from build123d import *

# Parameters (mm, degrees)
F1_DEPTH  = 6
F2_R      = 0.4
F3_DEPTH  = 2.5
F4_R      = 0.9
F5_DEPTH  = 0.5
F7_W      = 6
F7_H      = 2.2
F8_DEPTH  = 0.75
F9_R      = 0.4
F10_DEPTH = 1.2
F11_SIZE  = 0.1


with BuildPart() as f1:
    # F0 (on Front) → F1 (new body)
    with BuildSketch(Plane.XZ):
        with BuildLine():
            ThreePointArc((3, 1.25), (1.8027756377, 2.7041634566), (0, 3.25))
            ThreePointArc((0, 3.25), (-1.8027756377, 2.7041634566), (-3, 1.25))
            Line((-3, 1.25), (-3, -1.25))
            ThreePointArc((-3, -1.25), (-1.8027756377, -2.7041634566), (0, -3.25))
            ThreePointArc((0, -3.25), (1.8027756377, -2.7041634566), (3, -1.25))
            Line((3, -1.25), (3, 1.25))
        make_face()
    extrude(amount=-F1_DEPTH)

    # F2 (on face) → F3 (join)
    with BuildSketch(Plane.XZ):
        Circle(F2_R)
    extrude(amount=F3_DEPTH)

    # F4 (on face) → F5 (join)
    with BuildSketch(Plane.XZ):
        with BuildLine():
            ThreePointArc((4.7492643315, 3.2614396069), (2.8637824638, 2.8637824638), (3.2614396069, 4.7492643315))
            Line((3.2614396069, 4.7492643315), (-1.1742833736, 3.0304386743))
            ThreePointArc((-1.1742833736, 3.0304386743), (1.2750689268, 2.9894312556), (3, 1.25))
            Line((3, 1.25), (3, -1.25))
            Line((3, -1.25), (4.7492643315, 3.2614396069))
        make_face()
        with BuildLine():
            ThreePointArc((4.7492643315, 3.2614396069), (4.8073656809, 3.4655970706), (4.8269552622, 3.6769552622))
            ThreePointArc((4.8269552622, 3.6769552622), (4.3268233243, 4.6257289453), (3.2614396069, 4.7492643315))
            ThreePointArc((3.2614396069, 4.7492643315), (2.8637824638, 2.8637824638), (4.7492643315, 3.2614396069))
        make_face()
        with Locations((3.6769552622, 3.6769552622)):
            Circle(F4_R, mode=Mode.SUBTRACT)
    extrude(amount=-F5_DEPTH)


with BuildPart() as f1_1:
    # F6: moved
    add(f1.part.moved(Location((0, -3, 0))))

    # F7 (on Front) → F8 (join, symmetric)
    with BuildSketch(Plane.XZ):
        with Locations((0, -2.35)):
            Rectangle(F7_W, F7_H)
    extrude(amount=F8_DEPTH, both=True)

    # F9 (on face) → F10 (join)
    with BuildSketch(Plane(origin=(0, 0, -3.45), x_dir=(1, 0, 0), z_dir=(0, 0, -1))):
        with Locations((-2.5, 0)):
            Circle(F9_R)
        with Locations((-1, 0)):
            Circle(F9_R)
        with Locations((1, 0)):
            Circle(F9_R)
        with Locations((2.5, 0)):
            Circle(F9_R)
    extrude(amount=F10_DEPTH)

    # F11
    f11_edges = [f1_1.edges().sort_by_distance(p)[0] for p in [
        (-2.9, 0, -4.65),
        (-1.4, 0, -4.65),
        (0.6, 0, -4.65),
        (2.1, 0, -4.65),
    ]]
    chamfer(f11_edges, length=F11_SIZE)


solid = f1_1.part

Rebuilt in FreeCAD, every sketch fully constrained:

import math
import FreeCAD as App
import Part
import Sketcher
from FreeCAD import Vector
Q = App.Units.Quantity


def edges_at(feature, points):
    """Names of the edges that pass closest to the given points."""
    edges = feature.Shape.Edges
    near = lambda p: min(range(len(edges)), key=lambda i: edges[i].distToShape(Part.Vertex(*p))[0])
    return sorted({f"Edge{near(p) + 1}" for p in points})

doc = App.newDocument("Part")
body = doc.addObject("PartDesign::Body", "Body")

sketch1 = body.newObject("Sketcher::SketchObject", "Sketch")
sketch1.AttachmentSupport = (doc.getObject("XZ_Plane"), [""])
sketch1.MapMode = "FlatFace"
sketch1.addGeometry(Part.ArcOfCircle(Part.Circle(Vector(0, 0, 0), Vector(0, 0, 1), 3.2), math.radians(23), math.radians(90)), False)
sketch1.addGeometry(Part.ArcOfCircle(Part.Circle(Vector(0, 0, 0), Vector(0, 0, 1), 3.2), math.radians(90), math.radians(157)), False)
sketch1.addGeometry(Part.LineSegment(Vector(-3, 1.2, 0), Vector(-3, -1.2, 0)), False)
sketch1.addGeometry(Part.ArcOfCircle(Part.Circle(Vector(0, 0, 0), Vector(0, 0, 1), 3.2), math.radians(-157), math.radians(-90)), False)
sketch1.addGeometry(Part.ArcOfCircle(Part.Circle(Vector(0, 0, 0), Vector(0, 0, 1), 3.2), math.radians(-90), math.radians(-23)), False)
sketch1.addGeometry(Part.LineSegment(Vector(3, -1.2, 0), Vector(3, 1.2, 0)), False)
sketch1.addConstraint(Sketcher.Constraint("Tangent", 0, 2, 1, 1))
sketch1.addConstraint(Sketcher.Constraint("Coincident", 1, 2, 2, 1))
sketch1.addConstraint(Sketcher.Constraint("Coincident", 2, 2, 3, 1))
sketch1.addConstraint(Sketcher.Constraint("Tangent", 3, 2, 4, 1))
sketch1.addConstraint(Sketcher.Constraint("Coincident", 4, 2, 5, 1))
sketch1.addConstraint(Sketcher.Constraint("Coincident", 5, 2, 0, 1))
sketch1.addConstraint(Sketcher.Constraint("Vertical", 2))
sketch1.addConstraint(Sketcher.Constraint("Vertical", 5))
sketch1.addConstraint(Sketcher.Constraint("Coincident", 0, 3, -1, 1))
sketch1.addConstraint(Sketcher.Constraint("Coincident", 3, 3, -1, 1))
sketch1.addConstraint(Sketcher.Constraint("Equal", 0, 1))
sketch1.addConstraint(Sketcher.Constraint("Equal", 1, 3))
sketch1.addConstraint(Sketcher.Constraint("Equal", 3, 4))
sketch1.addConstraint(Sketcher.Constraint("PointOnObject", 0, 2, -2))
sketch1.addConstraint(Sketcher.Constraint("PointOnObject", 3, 2, -2))
sketch1.addConstraint(Sketcher.Constraint("Horizontal", 2, 2, 4, 2))
sketch1.addConstraint(Sketcher.Constraint("Radius", 0, Q("3.25 mm")))
sketch1.addConstraint(Sketcher.Constraint("DistanceY", 2, 2, 2, 1, Q("2.5 mm")))
pad1 = body.newObject("PartDesign::Pad", "Pad")
pad1.Profile = sketch1
pad1.Length = 6
pad1.Reversed = True

sketch2 = body.newObject("Sketcher::SketchObject", "Sketch001")
sketch2.AttachmentSupport = (doc.getObject("XZ_Plane"), [""])
sketch2.MapMode = "FlatFace"
sketch2.addGeometry(Part.Circle(Vector(0, 0, 0), Vector(0, 0, 1), 0.4), False)
sketch2.addConstraint(Sketcher.Constraint("Coincident", 0, 3, -1, 1))
sketch2.addConstraint(Sketcher.Constraint("Diameter", 0, Q("0.8 mm")))
pad2 = body.newObject("PartDesign::Pad", "Pad001")
pad2.Profile = sketch2
pad2.Length = 2.5

sketch3 = body.newObject("Sketcher::SketchObject", "Sketch002")
sketch3.AttachmentSupport = (doc.getObject("XZ_Plane"), [""])
sketch3.MapMode = "FlatFace"
sketch3.addGeometry(Part.LineSegment(Vector(3.26, 4.75, 0), Vector(-1.17, 3.03, 0)), False)
sketch3.addGeometry(Part.ArcOfCircle(Part.Circle(Vector(0, 0, 0), Vector(0, 0, 1), 3.25), math.radians(23), math.radians(111)), False)
sketch3.addGeometry(Part.LineSegment(Vector(3, 1.25, 0), Vector(3, -1.25, 0)), False)
sketch3.addGeometry(Part.LineSegment(Vector(3, -1.25, 0), Vector(4.75, 3.26, 0)), False)
sketch3.addGeometry(Part.ArcOfCircle(Part.Circle(Vector(3.68, 3.68, 0), Vector(0, 0, 1), 1.15), math.radians(-21), math.radians(0)), False)
sketch3.addGeometry(Part.ArcOfCircle(Part.Circle(Vector(3.68, 3.68, 0), Vector(0, 0, 1), 1.15), math.radians(0), math.radians(111)), False)
sketch3.addGeometry(Part.Circle(Vector(3.68, 3.68, 0), Vector(0, 0, 1), 0.9), False)
sketch3.addConstraint(Sketcher.Constraint("Tangent", 0, 2, 1, 2))
sketch3.addConstraint(Sketcher.Constraint("Coincident", 1, 1, 2, 1))
sketch3.addConstraint(Sketcher.Constraint("Coincident", 2, 2, 3, 1))
sketch3.addConstraint(Sketcher.Constraint("Coincident", 3, 2, 4, 1))
sketch3.addConstraint(Sketcher.Constraint("Tangent", 4, 2, 5, 1))
sketch3.addConstraint(Sketcher.Constraint("Tangent", 5, 2, 0, 1))
sketch3.addConstraint(Sketcher.Constraint("Vertical", 2))
sketch3.addConstraint(Sketcher.Constraint("Coincident", 1, 3, -1, 1))
sketch3.addConstraint(Sketcher.Constraint("Coincident", 6, 3, 4, 3))
sketch3.addConstraint(Sketcher.Constraint("Equal", 4, 5))
sketch3.addConstraint(Sketcher.Constraint("Horizontal", 6, 3, 4, 2))
sketch3.addConstraint(Sketcher.Constraint("Diameter", 6, Q("1.8 mm")))
sketch3.addConstraint(Sketcher.Constraint("Radius", 1, Q("3.25 mm")))
sketch3.addConstraint(Sketcher.Constraint("Radius", 4, Q("1.15 mm")))
sketch3.addConstraint(Sketcher.Constraint("DistanceY", 2, 2, 2, 1, Q("2.5 mm")))
sketch3.addConstraint(Sketcher.Constraint("DistanceX", -1, 1, 1, 1, Q("3 mm")))
sketch3.addConstraint(Sketcher.Constraint("Distance", 0, Q("4.7571 mm")))
sketch3.addConstraint(Sketcher.Constraint("Distance", 3, Q("4.8387 mm")))
sketch3.addConstraint(Sketcher.Constraint("DistanceY", -1, 1, 0, 2, Q("3.030439 mm")))
pad3 = body.newObject("PartDesign::Pad", "Pad002")
pad3.Profile = sketch3
pad3.Length = 0.5
pad3.Reversed = True
body2 = doc.addObject("PartDesign::Body", "Body001")
doc.recompute()

body.Placement = App.Placement(Vector(0, -3, 0), App.Rotation(Vector(0, 0, 1), 0))
boolean = body2.newObject("PartDesign::Boolean", "Boolean")
boolean.Type = "Fuse"
boolean.addObjects([body])

sketch4 = body2.newObject("Sketcher::SketchObject", "Sketch003")
sketch4.AttachmentSupport = (doc.getObject("XZ_Plane001"), [""])
sketch4.MapMode = "FlatFace"
sketch4.addGeometry(Part.LineSegment(Vector(-3, -1.2, 0), Vector(-3, -3.5, 0)), False)
sketch4.addGeometry(Part.LineSegment(Vector(-3, -3.5, 0), Vector(3, -3.5, 0)), False)
sketch4.addGeometry(Part.LineSegment(Vector(3, -3.5, 0), Vector(3, -1.2, 0)), False)
sketch4.addGeometry(Part.LineSegment(Vector(3, -1.2, 0), Vector(-3, -1.2, 0)), False)
sketch4.addConstraint(Sketcher.Constraint("Coincident", 0, 2, 1, 1))
sketch4.addConstraint(Sketcher.Constraint("Coincident", 1, 2, 2, 1))
sketch4.addConstraint(Sketcher.Constraint("Coincident", 2, 2, 3, 1))
sketch4.addConstraint(Sketcher.Constraint("Coincident", 3, 2, 0, 1))
sketch4.addConstraint(Sketcher.Constraint("Vertical", 0))
sketch4.addConstraint(Sketcher.Constraint("Horizontal", 1))
sketch4.addConstraint(Sketcher.Constraint("Vertical", 2))
sketch4.addConstraint(Sketcher.Constraint("Horizontal", 3))
sketch4.addConstraint(Sketcher.Constraint("DistanceX", 1, 1, 1, 2, Q("6 mm")))
sketch4.addConstraint(Sketcher.Constraint("DistanceY", 0, 2, 0, 1, Q("2.2 mm")))
sketch4.addConstraint(Sketcher.Constraint("DistanceX", 0, 2, -1, 1, Q("3 mm")))
sketch4.addConstraint(Sketcher.Constraint("DistanceY", 0, 2, -1, 1, Q("3.45 mm")))
pad4 = body2.newObject("PartDesign::Pad", "Pad003")
pad4.Profile = sketch4
pad4.Length = 1.5
pad4.Midplane = True

sketch5 = body2.newObject("Sketcher::SketchObject", "Sketch004")
sketch5.AttachmentSupport = (doc.getObject("XY_Plane001"), [""])
sketch5.MapMode = "FlatFace"
sketch5.AttachmentOffset = App.Placement(Vector(0, 0, -3.45), App.Rotation())
sketch5.addGeometry(Part.Circle(Vector(-2.5, 0, 0), Vector(0, 0, 1), 0.4), False)
sketch5.addGeometry(Part.Circle(Vector(-1, 0, 0), Vector(0, 0, 1), 0.4), False)
sketch5.addGeometry(Part.Circle(Vector(1, 0, 0), Vector(0, 0, 1), 0.4), False)
sketch5.addGeometry(Part.Circle(Vector(2.5, 0, 0), Vector(0, 0, 1), 0.4), False)
sketch5.addConstraint(Sketcher.Constraint("Equal", 0, 1))
sketch5.addConstraint(Sketcher.Constraint("Equal", 1, 2))
sketch5.addConstraint(Sketcher.Constraint("Equal", 2, 3))
sketch5.addConstraint(Sketcher.Constraint("Symmetric", 1, 3, 2, 3, -1, 1))
sketch5.addConstraint(Sketcher.Constraint("Symmetric", 0, 3, 3, 3, -1, 1))
sketch5.addConstraint(Sketcher.Constraint("PointOnObject", 0, 3, -1))
sketch5.addConstraint(Sketcher.Constraint("PointOnObject", 1, 3, -1))
sketch5.addConstraint(Sketcher.Constraint("Diameter", 0, Q("0.8 mm")))
sketch5.addConstraint(Sketcher.Constraint("DistanceX", 1, 3, -1, 1, Q("1 mm")))
sketch5.addConstraint(Sketcher.Constraint("DistanceX", 0, 3, 3, 3, Q("5 mm")))
pad5 = body2.newObject("PartDesign::Pad", "Pad004")
pad5.Profile = sketch5
pad5.Length = 1.2
pad5.Reversed = True
doc.recompute()

chamfer = body2.newObject("PartDesign::Chamfer", "Chamfer")
chamfer.Base = (pad5, edges_at(pad5, [
    (-2.9, 0, -4.65),
    (-1.4, 0, -4.65),
    (0.6, 0, -4.65),
    (2.1, 0, -4.65),
]))
chamfer.Size = 0.1

doc.recompute()
